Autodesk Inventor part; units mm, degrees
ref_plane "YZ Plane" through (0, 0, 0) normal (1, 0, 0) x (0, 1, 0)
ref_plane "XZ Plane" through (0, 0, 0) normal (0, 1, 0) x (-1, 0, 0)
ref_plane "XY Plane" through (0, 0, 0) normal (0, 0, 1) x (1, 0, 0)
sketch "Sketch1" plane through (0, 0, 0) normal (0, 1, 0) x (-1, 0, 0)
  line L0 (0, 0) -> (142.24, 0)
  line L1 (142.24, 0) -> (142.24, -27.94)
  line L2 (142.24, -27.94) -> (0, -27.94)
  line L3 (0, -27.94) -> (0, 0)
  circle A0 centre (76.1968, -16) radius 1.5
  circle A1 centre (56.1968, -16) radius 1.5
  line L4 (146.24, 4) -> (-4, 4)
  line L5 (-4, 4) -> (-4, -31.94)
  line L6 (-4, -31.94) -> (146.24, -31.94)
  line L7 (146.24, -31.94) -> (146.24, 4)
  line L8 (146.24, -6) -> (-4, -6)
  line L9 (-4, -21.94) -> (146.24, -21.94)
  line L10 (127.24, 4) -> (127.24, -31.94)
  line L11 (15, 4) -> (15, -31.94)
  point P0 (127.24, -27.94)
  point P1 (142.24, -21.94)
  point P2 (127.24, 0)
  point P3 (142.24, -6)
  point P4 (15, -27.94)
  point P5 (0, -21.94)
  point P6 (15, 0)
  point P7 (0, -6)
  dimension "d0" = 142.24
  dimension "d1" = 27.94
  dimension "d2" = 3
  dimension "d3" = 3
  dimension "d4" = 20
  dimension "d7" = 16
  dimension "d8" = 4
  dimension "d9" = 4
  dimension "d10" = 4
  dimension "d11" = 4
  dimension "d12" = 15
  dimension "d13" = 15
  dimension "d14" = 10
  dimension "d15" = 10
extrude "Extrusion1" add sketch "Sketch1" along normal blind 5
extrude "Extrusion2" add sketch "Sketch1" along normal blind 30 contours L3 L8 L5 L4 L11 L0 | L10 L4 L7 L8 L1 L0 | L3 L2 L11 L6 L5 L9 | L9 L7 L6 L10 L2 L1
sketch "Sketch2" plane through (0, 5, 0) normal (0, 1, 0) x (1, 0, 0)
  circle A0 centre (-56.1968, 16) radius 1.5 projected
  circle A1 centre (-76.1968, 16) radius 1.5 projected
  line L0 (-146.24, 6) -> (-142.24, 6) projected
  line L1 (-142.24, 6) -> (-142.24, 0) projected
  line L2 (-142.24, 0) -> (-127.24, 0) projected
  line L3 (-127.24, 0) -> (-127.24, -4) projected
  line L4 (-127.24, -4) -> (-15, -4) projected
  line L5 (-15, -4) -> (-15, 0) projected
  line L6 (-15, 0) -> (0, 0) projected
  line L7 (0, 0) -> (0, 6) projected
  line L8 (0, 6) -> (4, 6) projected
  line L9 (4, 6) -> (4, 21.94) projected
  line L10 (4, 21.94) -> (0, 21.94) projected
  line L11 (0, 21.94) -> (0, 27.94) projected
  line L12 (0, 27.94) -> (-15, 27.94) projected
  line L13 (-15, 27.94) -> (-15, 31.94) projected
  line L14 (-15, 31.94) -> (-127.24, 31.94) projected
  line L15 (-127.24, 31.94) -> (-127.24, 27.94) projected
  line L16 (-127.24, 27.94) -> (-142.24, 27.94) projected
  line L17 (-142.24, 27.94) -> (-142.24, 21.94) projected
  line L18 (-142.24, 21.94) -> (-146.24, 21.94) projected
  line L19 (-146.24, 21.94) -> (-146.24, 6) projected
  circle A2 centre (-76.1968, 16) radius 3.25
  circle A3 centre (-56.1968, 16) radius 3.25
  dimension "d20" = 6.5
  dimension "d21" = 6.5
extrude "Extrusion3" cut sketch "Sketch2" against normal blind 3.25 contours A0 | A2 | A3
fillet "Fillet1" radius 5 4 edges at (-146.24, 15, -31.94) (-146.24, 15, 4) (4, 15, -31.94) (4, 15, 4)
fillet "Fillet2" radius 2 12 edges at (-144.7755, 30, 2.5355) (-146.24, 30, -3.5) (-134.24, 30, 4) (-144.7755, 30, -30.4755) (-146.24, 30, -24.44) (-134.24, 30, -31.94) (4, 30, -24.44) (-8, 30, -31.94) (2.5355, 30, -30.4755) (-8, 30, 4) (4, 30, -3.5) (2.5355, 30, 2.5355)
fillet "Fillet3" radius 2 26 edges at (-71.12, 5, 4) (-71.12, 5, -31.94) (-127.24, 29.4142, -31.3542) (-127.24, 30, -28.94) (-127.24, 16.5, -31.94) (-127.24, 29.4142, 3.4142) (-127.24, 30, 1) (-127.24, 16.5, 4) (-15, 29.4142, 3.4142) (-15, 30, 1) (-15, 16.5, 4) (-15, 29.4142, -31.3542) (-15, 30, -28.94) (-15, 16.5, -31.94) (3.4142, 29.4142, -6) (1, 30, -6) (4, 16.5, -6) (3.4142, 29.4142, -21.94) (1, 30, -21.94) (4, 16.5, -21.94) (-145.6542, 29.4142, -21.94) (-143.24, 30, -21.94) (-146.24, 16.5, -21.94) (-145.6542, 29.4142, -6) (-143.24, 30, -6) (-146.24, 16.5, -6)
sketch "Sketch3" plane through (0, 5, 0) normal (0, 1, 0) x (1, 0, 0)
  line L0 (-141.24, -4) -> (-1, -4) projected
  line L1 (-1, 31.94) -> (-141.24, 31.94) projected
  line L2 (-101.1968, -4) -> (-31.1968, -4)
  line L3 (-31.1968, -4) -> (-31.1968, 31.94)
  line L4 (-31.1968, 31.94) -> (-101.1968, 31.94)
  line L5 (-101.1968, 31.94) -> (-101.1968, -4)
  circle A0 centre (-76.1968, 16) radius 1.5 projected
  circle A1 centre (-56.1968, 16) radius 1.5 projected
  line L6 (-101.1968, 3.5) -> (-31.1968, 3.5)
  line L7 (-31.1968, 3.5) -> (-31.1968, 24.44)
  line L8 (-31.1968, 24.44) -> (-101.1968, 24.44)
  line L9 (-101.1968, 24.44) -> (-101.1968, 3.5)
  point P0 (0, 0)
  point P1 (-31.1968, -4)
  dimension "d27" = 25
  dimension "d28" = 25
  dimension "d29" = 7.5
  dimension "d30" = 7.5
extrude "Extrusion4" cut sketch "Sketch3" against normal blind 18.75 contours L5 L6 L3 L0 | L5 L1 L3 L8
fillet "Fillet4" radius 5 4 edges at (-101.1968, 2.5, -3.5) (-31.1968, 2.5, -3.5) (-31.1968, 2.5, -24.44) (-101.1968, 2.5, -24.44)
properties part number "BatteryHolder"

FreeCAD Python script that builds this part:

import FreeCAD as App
import Part
import Sketcher


def edges_at(feature, points):
    """Names of the edges that pass closest to the given points."""
    edges = feature.Shape.Edges
    near = lambda p: min(range(len(edges)), key=lambda i: edges[i].distToShape(Part.Vertex(*p))[0])
    return sorted({f"Edge{near(p) + 1}" for p in points})


def add_polygon(sketch, points):
    """Adds a closed chain of lines whose ends are joined by coincident constraints."""
    first, n = sketch.GeometryCount, len(points)
    for a, b in zip(points, points[1:] + points[:1]):
        sketch.addGeometry(Part.LineSegment(App.Vector(*a, 0), App.Vector(*b, 0)), False)
    for i in range(n):
        sketch.addConstraint(Sketcher.Constraint("Coincident", first + i, 2, first + (i + 1) % n, 1))

doc = App.newDocument("Part")
body = doc.addObject("PartDesign::Body", "Body")

sketch1 = doc.addObject("Sketcher::SketchObject", "Sketch")
body.addObject(sketch1)
sketch1.AttachmentSupport = (doc.XZ_Plane, [""])
sketch1.MapMode = "FlatFace"
add_polygon(sketch1, [(4, 4), (4, -31.9), (-146.2, -31.9), (-146.2, 4)])
sketch1.addGeometry(Part.Circle(App.Vector(-56.2, -16, 0), App.Vector(0, 0, 1), 1.5), False)
sketch1.addGeometry(Part.Circle(App.Vector(-76.2, -16, 0), App.Vector(0, 0, 1), 1.5), False)
sketch1.addConstraint(Sketcher.Constraint("Vertical", 0))
sketch1.addConstraint(Sketcher.Constraint("Horizontal", 1))
sketch1.addConstraint(Sketcher.Constraint("Vertical", 2))
sketch1.addConstraint(Sketcher.Constraint("Horizontal", 3))
sketch1.addConstraint(Sketcher.Constraint("Equal", 4, 5))
sketch1.addConstraint(Sketcher.Constraint("Horizontal", 4, 3, 5, 3))
sketch1.addConstraint(Sketcher.Constraint("Diameter", 4, 3.0))
sketch1.addConstraint(Sketcher.Constraint("DistanceY", 4, 3, -1, 1, 16.0))
sketch1.addConstraint(Sketcher.Constraint("DistanceX", -1, 1, 0, 2, 4.0))
sketch1.addConstraint(Sketcher.Constraint("DistanceY", -1, 1, 2, 2, 4.0))
sketch1.addConstraint(Sketcher.Constraint("DistanceX", 5, 3, 4, 3, 20.0))
sketch1.addConstraint(Sketcher.Constraint("DistanceX", 1, 2, 1, 1, 150.24))
sketch1.addConstraint(Sketcher.Constraint("DistanceY", 0, 2, 0, 1, 35.94))
sketch1.addConstraint(Sketcher.Constraint("DistanceX", 4, 3, -1, 1, 56.1968))
pad1 = doc.addObject("PartDesign::Pad", "Pad")
body.addObject(pad1)
pad1.Profile = sketch1
pad1.Length = 5
pad1.Reversed = True

sketch2 = doc.addObject("Sketcher::SketchObject", "Sketch001")
body.addObject(sketch2)
sketch2.AttachmentSupport = (doc.XZ_Plane, [""])
sketch2.MapMode = "FlatFace"
add_polygon(sketch2, [(0, -6), (0, 0), (-15, 0), (-15, 4), (4, 4), (4, -6)])
add_polygon(sketch2, [(-127.2, 4), (-127.2, 0), (-142.2, 0), (-142.2, -6), (-146.2, -6), (-146.2, 4)])
add_polygon(sketch2, [(0, -27.9), (0, -21.9), (4, -21.9), (4, -31.9), (-15, -31.9), (-15, -27.9)])
add_polygon(sketch2, [(-146.2, -21.9), (-142.2, -21.9), (-142.2, -27.9), (-127.2, -27.9), (-127.2, -31.9), (-146.2, -31.9)])
sketch2.addConstraint(Sketcher.Constraint("Vertical", 0))
sketch2.addConstraint(Sketcher.Constraint("Horizontal", 1))
sketch2.addConstraint(Sketcher.Constraint("Vertical", 2))
sketch2.addConstraint(Sketcher.Constraint("Horizontal", 3))
sketch2.addConstraint(Sketcher.Constraint("Vertical", 4))
sketch2.addConstraint(Sketcher.Constraint("Horizontal", 5))
sketch2.addConstraint(Sketcher.Constraint("Vertical", 6))
sketch2.addConstraint(Sketcher.Constraint("Horizontal", 7))
sketch2.addConstraint(Sketcher.Constraint("Vertical", 8))
sketch2.addConstraint(Sketcher.Constraint("Horizontal", 9))
sketch2.addConstraint(Sketcher.Constraint("Vertical", 10))
sketch2.addConstraint(Sketcher.Constraint("Horizontal", 11))
sketch2.addConstraint(Sketcher.Constraint("Vertical", 12))
sketch2.addConstraint(Sketcher.Constraint("Horizontal", 13))
sketch2.addConstraint(Sketcher.Constraint("Vertical", 14))
sketch2.addConstraint(Sketcher.Constraint("Horizontal", 15))
sketch2.addConstraint(Sketcher.Constraint("Vertical", 16))
sketch2.addConstraint(Sketcher.Constraint("Horizontal", 17))
sketch2.addConstraint(Sketcher.Constraint("Horizontal", 18))
sketch2.addConstraint(Sketcher.Constraint("Vertical", 19))
sketch2.addConstraint(Sketcher.Constraint("Horizontal", 20))
sketch2.addConstraint(Sketcher.Constraint("Vertical", 21))
sketch2.addConstraint(Sketcher.Constraint("Horizontal", 22))
sketch2.addConstraint(Sketcher.Constraint("Vertical", 23))
sketch2.addConstraint(Sketcher.Constraint("Coincident", 0, 2, -1, 1))
sketch2.addConstraint(Sketcher.Constraint("PointOnObject", 6, 2, -1))
sketch2.addConstraint(Sketcher.Constraint("PointOnObject", 12, 2, -2))
sketch2.addConstraint(Sketcher.Constraint("Horizontal", 5, 2, 8, 2))
sketch2.addConstraint(Sketcher.Constraint("Horizontal", 3, 2, 10, 2))
sketch2.addConstraint(Sketcher.Constraint("Horizontal", 13, 2, 18, 2))
sketch2.addConstraint(Sketcher.Constraint("Horizontal", 17, 2, 19, 2))
sketch2.addConstraint(Sketcher.Constraint("Horizontal", 15, 2, 21, 2))
sketch2.addConstraint(Sketcher.Constraint("Vertical", 4, 2, 13, 2))
sketch2.addConstraint(Sketcher.Constraint("Vertical", 2, 2, 15, 2))
sketch2.addConstraint(Sketcher.Constraint("Vertical", 8, 2, 18, 2))
sketch2.addConstraint(Sketcher.Constraint("Vertical", 11, 2, 20, 2))
sketch2.addConstraint(Sketcher.Constraint("Vertical", 10, 2, 22, 2))
sketch2.addConstraint(Sketcher.Constraint("Equal", 1, 7))
sketch2.addConstraint(Sketcher.Constraint("Equal", 5, 9))
sketch2.addConstraint(Sketcher.Constraint("Equal", 18, 2))
sketch2.addConstraint(Sketcher.Constraint("Equal", 8, 12))
sketch2.addConstraint(Sketcher.Constraint("Equal", 10, 14))
sketch2.addConstraint(Sketcher.Constraint("DistanceX", 1, 2, 1, 1, 15.0))
sketch2.addConstraint(Sketcher.Constraint("DistanceX", 5, 2, 5, 1, 4.0))
sketch2.addConstraint(Sketcher.Constraint("DistanceY", 4, 2, 4, 1, 10.0))
sketch2.addConstraint(Sketcher.Constraint("DistanceX", 7, 2, -1, 1, 142.24))
sketch2.addConstraint(Sketcher.Constraint("DistanceY", 16, 2, -1, 1, 27.94))
pad2 = doc.addObject("PartDesign::Pad", "Pad001")
body.addObject(pad2)
pad2.Profile = sketch2
pad2.Length = 30
pad2.Reversed = True

sketch3 = doc.addObject("Sketcher::SketchObject", "Sketch002")
body.addObject(sketch3)
sketch3.AttachmentSupport = (doc.XZ_Plane, [""])
sketch3.MapMode = "FlatFace"
sketch3.AttachmentOffset = App.Placement(App.Vector(0, 0, -5), App.Rotation())
sketch3.addGeometry(Part.Circle(App.Vector(-56.2, -16, 0), App.Vector(0, 0, 1), 3.2), False)
sketch3.addGeometry(Part.Circle(App.Vector(-76.2, -16, 0), App.Vector(0, 0, 1), 3.2), False)
sketch3.addGeometry(Part.Circle(App.Vector(-76.2, -16, 0), App.Vector(0, 0, 1), 1.5), False)
sketch3.addConstraint(Sketcher.Constraint("Coincident", 2, 3, 1, 3))
sketch3.addConstraint(Sketcher.Constraint("Equal", 0, 1))
sketch3.addConstraint(Sketcher.Constraint("Horizontal", 0, 3, 1, 3))
sketch3.addConstraint(Sketcher.Constraint("Diameter", 0, 6.5))
sketch3.addConstraint(Sketcher.Constraint("Diameter", 2, 3.0))
sketch3.addConstraint(Sketcher.Constraint("DistanceY", 0, 3, -1, 1, 16.0))
sketch3.addConstraint(Sketcher.Constraint("DistanceX", 1, 3, 0, 3, 20.0))
sketch3.addConstraint(Sketcher.Constraint("DistanceX", 0, 3, -1, 1, 56.1968))
pocket1 = doc.addObject("PartDesign::Pocket", "Pocket")
body.addObject(pocket1)
pocket1.Profile = sketch3
pocket1.Length = 3.25
pocket1.Reversed = True
doc.recompute()

fillet = doc.addObject("PartDesign::Fillet", "Fillet")
body.addObject(fillet)
fillet.Base = (pocket1, edges_at(pocket1, [
    (-146.24, 15, -31.94),
    (-146.24, 15, 4),
    (4, 15, -31.94),
    (4, 15, 4),
]))
fillet.Radius = 5
doc.recompute()

fillet2 = doc.addObject("PartDesign::Fillet", "Fillet001")
body.addObject(fillet2)
fillet2.Base = (fillet, edges_at(fillet, [
    (-144.775, 30, 2.535),
    (-146.24, 30, -3.5),
    (-134.24, 30, 4),
    (-144.775, 30, -30.476),
    (-146.24, 30, -24.44),
    (-134.24, 30, -31.94),
    (4, 30, -24.44),
    (-8, 30, -31.94),
    (2.535, 30, -30.476),
    (-8, 30, 4),
    (4, 30, -3.5),
    (2.535, 30, 2.535),
]))
fillet2.Radius = 2
doc.recompute()

fillet3 = doc.addObject("PartDesign::Fillet", "Fillet002")
body.addObject(fillet3)
fillet3.Base = (fillet2, edges_at(fillet2, [
    (-71.12, 5, 4),
    (-71.12, 5, -31.94),
    (-127.24, 29.414, -31.354),
    (-127.24, 30, -28.94),
    (-127.24, 16.5, -31.94),
    (-127.24, 29.414, 3.414),
    (-127.24, 30, 1),
    (-127.24, 16.5, 4),
    (-15, 29.414, 3.414),
    (-15, 30, 1),
    (-15, 16.5, 4),
    (-15, 29.414, -31.354),
    (-15, 30, -28.94),
    (-15, 16.5, -31.94),
    (3.414, 29.414, -6),
    (1, 30, -6),
    (4, 16.5, -6),
    (3.414, 29.414, -21.94),
    (1, 30, -21.94),
    (4, 16.5, -21.94),
    (-145.654, 29.414, -21.94),
    (-143.24, 30, -21.94),
    (-146.24, 16.5, -21.94),
    (-145.654, 29.414, -6),
    (-143.24, 30, -6),
    (-146.24, 16.5, -6),
]))
fillet3.Radius = 2

sketch4 = doc.addObject("Sketcher::SketchObject", "Sketch003")
body.addObject(sketch4)
sketch4.AttachmentSupport = (doc.XZ_Plane, [""])
sketch4.MapMode = "FlatFace"
sketch4.AttachmentOffset = App.Placement(App.Vector(0, 0, -5), App.Rotation())
add_polygon(sketch4, [(-101, -4), (-101, 4), (-31, 4), (-31, -4)])
add_polygon(sketch4, [(-101, -32), (-101, -24), (-31, -24), (-31, -32)])
sketch4.addConstraint(Sketcher.Constraint("Vertical", 0))
sketch4.addConstraint(Sketcher.Constraint("Horizontal", 1))
sketch4.addConstraint(Sketcher.Constraint("Vertical", 2))
sketch4.addConstraint(Sketcher.Constraint("Horizontal", 3))
sketch4.addConstraint(Sketcher.Constraint("Vertical", 4))
sketch4.addConstraint(Sketcher.Constraint("Horizontal", 5))
sketch4.addConstraint(Sketcher.Constraint("Vertical", 6))
sketch4.addConstraint(Sketcher.Constraint("Horizontal", 7))
sketch4.addConstraint(Sketcher.Constraint("Vertical", 3, 2, 4, 2))
sketch4.addConstraint(Sketcher.Constraint("Vertical", 2, 2, 5, 2))
sketch4.addConstraint(Sketcher.Constraint("Equal", 2, 4))
sketch4.addConstraint(Sketcher.Constraint("DistanceY", 0, 1, 0, 2, 7.5))
sketch4.addConstraint(Sketcher.Constraint("DistanceX", 1, 1, 1, 2, 70.0))
sketch4.addConstraint(Sketcher.Constraint("DistanceY", -1, 1, 0, 2, 4.0))
sketch4.addConstraint(Sketcher.Constraint("DistanceY", 4, 2, -1, 1, 24.44))
sketch4.addConstraint(Sketcher.Constraint("DistanceX", 0, 2, -1, 1, 101.1968))
pocket2 = doc.addObject("PartDesign::Pocket", "Pocket001")
body.addObject(pocket2)
pocket2.Profile = sketch4
pocket2.Length = 18.75
pocket2.Reversed = True
doc.recompute()

fillet4 = doc.addObject("PartDesign::Fillet", "Fillet003")
body.addObject(fillet4)
fillet4.Base = (pocket2, edges_at(pocket2, [
    (-101.197, 2.5, -3.5),
    (-31.197, 2.5, -3.5),
    (-31.197, 2.5, -24.44),
    (-101.197, 2.5, -24.44),
]))
fillet4.Radius = 5

doc.recompute()
